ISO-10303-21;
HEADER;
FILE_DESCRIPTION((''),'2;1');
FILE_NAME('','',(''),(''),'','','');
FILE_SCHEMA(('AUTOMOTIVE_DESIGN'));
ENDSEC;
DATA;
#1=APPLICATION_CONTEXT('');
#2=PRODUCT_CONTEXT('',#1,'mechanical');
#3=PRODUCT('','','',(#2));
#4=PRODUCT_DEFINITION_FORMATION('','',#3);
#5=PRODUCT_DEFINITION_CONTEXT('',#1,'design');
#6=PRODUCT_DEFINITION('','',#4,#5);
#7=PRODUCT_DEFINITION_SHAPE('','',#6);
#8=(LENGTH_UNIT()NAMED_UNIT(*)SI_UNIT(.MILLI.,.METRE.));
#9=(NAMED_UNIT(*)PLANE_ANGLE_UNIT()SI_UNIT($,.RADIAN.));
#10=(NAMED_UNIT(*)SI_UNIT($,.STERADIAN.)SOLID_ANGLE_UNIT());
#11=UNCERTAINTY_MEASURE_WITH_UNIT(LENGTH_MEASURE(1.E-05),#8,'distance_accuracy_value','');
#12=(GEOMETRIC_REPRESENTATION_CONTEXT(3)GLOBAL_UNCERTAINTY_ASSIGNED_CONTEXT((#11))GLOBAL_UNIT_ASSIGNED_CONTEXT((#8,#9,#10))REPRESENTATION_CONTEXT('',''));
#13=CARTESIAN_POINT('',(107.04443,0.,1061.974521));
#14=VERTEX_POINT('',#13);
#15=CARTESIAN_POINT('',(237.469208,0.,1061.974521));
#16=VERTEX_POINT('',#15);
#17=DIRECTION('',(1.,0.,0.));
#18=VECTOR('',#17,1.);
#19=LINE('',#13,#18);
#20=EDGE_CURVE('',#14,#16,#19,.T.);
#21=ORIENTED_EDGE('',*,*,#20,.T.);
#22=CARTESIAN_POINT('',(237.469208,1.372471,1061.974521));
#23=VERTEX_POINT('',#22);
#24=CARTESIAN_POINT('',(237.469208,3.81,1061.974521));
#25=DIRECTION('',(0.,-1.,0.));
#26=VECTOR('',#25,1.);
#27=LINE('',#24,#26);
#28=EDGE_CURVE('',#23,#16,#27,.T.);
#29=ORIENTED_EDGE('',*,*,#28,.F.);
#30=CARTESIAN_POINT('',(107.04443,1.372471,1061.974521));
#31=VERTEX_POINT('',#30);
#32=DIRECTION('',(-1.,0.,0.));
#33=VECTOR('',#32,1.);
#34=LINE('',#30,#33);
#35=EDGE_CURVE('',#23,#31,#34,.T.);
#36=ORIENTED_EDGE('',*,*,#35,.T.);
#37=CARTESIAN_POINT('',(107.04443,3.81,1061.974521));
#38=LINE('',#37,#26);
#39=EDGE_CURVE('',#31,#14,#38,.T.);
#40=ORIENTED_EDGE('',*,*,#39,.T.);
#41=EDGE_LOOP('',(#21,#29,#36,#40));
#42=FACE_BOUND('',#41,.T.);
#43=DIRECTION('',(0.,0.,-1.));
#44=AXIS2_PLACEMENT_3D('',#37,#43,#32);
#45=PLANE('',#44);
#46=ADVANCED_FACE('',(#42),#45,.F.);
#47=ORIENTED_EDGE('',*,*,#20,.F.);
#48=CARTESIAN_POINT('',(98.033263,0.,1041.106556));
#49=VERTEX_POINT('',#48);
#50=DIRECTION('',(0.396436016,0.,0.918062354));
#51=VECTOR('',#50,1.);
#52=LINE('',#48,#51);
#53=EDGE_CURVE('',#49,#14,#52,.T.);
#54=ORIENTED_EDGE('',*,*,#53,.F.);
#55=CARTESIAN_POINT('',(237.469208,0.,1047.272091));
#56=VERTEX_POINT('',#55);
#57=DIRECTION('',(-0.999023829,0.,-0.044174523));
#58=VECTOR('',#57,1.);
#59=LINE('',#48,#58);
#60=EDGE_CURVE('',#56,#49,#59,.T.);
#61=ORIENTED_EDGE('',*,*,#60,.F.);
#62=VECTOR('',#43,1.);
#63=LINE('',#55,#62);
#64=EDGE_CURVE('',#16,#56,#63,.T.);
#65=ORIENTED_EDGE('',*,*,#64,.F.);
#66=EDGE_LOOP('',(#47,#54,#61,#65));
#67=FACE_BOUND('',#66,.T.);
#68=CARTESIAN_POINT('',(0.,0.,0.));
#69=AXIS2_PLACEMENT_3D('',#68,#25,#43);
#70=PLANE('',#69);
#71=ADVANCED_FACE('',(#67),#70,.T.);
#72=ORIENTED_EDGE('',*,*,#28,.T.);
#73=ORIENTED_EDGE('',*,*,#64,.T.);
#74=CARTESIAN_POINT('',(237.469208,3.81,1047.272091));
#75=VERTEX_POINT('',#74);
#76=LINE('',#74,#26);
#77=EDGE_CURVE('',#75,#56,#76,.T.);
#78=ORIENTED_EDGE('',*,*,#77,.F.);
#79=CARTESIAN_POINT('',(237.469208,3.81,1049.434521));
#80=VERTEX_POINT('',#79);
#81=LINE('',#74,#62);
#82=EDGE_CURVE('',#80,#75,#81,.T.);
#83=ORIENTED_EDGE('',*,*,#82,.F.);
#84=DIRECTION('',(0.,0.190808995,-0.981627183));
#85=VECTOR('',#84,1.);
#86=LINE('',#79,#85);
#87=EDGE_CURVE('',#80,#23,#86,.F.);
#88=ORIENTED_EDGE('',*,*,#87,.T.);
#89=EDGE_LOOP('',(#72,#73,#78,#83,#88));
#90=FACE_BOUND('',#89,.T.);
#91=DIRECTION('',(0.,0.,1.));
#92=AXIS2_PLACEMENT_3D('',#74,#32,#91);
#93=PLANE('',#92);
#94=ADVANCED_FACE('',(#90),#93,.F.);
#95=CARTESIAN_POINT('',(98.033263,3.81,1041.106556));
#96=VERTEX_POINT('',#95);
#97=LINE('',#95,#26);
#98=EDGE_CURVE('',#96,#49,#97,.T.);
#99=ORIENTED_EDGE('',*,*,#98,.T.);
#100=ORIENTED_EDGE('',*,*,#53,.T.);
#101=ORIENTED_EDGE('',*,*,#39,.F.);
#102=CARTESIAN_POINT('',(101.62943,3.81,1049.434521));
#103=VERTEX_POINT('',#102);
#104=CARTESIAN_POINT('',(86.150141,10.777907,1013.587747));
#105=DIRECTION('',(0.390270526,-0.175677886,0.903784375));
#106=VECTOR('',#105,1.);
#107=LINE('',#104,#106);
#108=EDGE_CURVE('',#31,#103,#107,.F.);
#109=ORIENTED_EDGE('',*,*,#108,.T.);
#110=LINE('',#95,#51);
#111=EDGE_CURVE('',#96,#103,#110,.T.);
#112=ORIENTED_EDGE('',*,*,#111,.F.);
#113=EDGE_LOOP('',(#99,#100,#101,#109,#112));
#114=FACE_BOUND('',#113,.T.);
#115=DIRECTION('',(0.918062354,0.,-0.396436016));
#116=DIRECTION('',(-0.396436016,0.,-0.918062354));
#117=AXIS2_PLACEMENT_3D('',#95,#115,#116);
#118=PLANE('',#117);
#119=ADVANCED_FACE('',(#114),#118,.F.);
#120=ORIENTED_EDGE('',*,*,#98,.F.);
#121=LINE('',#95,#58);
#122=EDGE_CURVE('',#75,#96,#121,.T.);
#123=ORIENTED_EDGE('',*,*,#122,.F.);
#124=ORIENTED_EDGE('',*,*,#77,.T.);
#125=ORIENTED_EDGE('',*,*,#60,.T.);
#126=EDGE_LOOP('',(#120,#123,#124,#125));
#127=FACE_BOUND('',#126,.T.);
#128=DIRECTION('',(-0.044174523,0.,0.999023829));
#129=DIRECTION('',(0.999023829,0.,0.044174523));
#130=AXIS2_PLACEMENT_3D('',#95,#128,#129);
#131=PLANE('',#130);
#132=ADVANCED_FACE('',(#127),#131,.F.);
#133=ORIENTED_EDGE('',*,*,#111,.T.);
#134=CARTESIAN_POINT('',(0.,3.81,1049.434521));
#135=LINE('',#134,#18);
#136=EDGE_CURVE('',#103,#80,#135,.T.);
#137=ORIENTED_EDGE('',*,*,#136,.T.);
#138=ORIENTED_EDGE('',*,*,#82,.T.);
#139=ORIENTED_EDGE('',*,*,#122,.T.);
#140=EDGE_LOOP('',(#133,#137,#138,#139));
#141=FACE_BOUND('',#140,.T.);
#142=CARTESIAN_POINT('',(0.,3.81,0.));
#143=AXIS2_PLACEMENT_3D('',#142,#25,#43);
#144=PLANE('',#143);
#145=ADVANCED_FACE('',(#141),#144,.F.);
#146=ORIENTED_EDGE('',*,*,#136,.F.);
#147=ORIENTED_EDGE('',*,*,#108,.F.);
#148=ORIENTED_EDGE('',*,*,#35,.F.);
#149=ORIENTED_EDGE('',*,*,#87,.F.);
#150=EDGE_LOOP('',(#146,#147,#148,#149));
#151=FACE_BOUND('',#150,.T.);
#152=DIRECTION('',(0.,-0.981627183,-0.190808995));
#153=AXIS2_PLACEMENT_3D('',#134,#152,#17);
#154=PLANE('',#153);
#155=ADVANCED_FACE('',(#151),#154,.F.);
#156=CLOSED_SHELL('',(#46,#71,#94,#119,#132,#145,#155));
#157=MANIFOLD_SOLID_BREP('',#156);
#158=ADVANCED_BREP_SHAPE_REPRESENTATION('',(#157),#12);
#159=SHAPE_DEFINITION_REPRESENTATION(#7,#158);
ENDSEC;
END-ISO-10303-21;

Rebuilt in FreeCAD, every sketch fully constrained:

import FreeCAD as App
import Part
import Sketcher
from FreeCAD import Vector
Q = App.Units.Quantity


def edges_at(feature, points):
    """Names of the edges that pass closest to the given points."""
    edges = feature.Shape.Edges
    near = lambda p: min(range(len(edges)), key=lambda i: edges[i].distToShape(Part.Vertex(*p))[0])
    return sorted({f"Edge{near(p) + 1}" for p in points})


def add_polygon(sketch, points):
    """Adds a closed chain of lines whose ends are joined by coincident constraints."""
    first, n = sketch.GeometryCount, len(points)
    for a, b in zip(points, points[1:] + points[:1]):
        sketch.addGeometry(Part.LineSegment(App.Vector(*a, 0), App.Vector(*b, 0)), False)
    for i in range(n):
        sketch.addConstraint(Sketcher.Constraint("Coincident", first + i, 2, first + (i + 1) % n, 1))

doc = App.newDocument("Part")
body = doc.addObject("PartDesign::Body", "Body")

# Sketch on XZ plane
sketch1 = doc.addObject("Sketcher::SketchObject", "Sketch")
body.addObject(sketch1)
sketch1.AttachmentSupport = (doc.XZ_Plane, [""])
sketch1.MapMode = "FlatFace"
add_polygon(sketch1, [(98, 1041), (107, 1062), (237, 1062), (237, 1047)])  # lines 0-3
sketch1.addConstraint([
    Sketcher.Constraint("Horizontal", 1),
    Sketcher.Constraint("Vertical", 2),
    Sketcher.Constraint("DistanceX", 1, 1, 1, 2, Q("130.424778 mm")),
    Sketcher.Constraint("DistanceY", 2, 2, 2, 1, Q("14.70243 mm")),
    Sketcher.Constraint("Distance", 3, Q("139.572191 mm")),
    Sketcher.Constraint("DistanceX", -1, 1, 0, 2, Q("107.04443 mm")),
    Sketcher.Constraint("DistanceY", -1, 1, 0, 2, Q("1061.974521 mm")),
    Sketcher.Constraint("Distance", 0, Q("22.730444 mm")),
])
pad1 = doc.addObject("PartDesign::Pad", "Pad")
body.addObject(pad1)
pad1.Profile = sketch1
pad1.Length = Q("0.15 in")
pad1.Reversed = True
doc.recompute()

chamfer = doc.addObject("PartDesign::Chamfer", "Chamfer")
body.addObject(chamfer)
chamfer.Base = (pad1, edges_at(pad1, [(172.257, 3.81, 1061.975)]))
chamfer.ChamferType = "Two distances"
chamfer.Size = 12.54
chamfer.Size2 = 2.437529
chamfer.FlipDirection = True

doc.recompute()
